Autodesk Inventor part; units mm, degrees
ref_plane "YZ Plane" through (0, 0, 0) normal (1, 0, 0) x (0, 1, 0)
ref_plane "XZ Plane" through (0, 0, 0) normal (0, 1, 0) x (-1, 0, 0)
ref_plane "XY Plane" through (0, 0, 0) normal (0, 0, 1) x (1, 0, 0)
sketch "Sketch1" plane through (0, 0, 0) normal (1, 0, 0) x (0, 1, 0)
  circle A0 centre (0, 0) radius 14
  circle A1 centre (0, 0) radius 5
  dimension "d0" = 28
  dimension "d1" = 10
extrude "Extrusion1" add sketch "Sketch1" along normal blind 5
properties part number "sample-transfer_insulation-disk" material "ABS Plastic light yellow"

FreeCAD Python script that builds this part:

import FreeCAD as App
import Part
import Sketcher
from FreeCAD import Vector

doc = App.newDocument("Part")
params = doc.addObject("Spreadsheet::Sheet", "Params")
for row, (alias, value) in enumerate([
    ("sketch1_diameter", "28 mm"),
    ("sketch1_diameter2", "10 mm"),
    ("pad1_length", "5 mm"),
], start=1):
    params.set(f"A{row}", alias)
    params.set(f"B{row}", "=" + value)
    params.setAlias(f"B{row}", alias)

body = doc.addObject("PartDesign::Body", "Body")

sketch1 = body.newObject("Sketcher::SketchObject", "Sketch")
sketch1.AttachmentSupport = (doc.getObject("YZ_Plane"), [""])
sketch1.MapMode = "FlatFace"
sketch1.addGeometry(Part.Circle(Vector(0, 0, 0), Vector(0, 0, 1), 14), False)
sketch1.addGeometry(Part.Circle(Vector(0, 0, 0), Vector(0, 0, 1), 5), False)
sketch1.addConstraint(Sketcher.Constraint("Coincident", 0, 3, -1, 1))
sketch1.addConstraint(Sketcher.Constraint("Coincident", 1, 3, -1, 1))
sketch1.addConstraint(Sketcher.Constraint("Diameter", 0, 28.0))
sketch1.addConstraint(Sketcher.Constraint("Diameter", 1, 10.0))
sketch1.setExpression("Constraints[2]", "Params.sketch1_diameter")
sketch1.setExpression("Constraints[3]", "Params.sketch1_diameter2")
pad1 = body.newObject("PartDesign::Pad", "Pad")
pad1.Profile = sketch1
pad1.setExpression("Length", "Params.pad1_length")

doc.recompute()
